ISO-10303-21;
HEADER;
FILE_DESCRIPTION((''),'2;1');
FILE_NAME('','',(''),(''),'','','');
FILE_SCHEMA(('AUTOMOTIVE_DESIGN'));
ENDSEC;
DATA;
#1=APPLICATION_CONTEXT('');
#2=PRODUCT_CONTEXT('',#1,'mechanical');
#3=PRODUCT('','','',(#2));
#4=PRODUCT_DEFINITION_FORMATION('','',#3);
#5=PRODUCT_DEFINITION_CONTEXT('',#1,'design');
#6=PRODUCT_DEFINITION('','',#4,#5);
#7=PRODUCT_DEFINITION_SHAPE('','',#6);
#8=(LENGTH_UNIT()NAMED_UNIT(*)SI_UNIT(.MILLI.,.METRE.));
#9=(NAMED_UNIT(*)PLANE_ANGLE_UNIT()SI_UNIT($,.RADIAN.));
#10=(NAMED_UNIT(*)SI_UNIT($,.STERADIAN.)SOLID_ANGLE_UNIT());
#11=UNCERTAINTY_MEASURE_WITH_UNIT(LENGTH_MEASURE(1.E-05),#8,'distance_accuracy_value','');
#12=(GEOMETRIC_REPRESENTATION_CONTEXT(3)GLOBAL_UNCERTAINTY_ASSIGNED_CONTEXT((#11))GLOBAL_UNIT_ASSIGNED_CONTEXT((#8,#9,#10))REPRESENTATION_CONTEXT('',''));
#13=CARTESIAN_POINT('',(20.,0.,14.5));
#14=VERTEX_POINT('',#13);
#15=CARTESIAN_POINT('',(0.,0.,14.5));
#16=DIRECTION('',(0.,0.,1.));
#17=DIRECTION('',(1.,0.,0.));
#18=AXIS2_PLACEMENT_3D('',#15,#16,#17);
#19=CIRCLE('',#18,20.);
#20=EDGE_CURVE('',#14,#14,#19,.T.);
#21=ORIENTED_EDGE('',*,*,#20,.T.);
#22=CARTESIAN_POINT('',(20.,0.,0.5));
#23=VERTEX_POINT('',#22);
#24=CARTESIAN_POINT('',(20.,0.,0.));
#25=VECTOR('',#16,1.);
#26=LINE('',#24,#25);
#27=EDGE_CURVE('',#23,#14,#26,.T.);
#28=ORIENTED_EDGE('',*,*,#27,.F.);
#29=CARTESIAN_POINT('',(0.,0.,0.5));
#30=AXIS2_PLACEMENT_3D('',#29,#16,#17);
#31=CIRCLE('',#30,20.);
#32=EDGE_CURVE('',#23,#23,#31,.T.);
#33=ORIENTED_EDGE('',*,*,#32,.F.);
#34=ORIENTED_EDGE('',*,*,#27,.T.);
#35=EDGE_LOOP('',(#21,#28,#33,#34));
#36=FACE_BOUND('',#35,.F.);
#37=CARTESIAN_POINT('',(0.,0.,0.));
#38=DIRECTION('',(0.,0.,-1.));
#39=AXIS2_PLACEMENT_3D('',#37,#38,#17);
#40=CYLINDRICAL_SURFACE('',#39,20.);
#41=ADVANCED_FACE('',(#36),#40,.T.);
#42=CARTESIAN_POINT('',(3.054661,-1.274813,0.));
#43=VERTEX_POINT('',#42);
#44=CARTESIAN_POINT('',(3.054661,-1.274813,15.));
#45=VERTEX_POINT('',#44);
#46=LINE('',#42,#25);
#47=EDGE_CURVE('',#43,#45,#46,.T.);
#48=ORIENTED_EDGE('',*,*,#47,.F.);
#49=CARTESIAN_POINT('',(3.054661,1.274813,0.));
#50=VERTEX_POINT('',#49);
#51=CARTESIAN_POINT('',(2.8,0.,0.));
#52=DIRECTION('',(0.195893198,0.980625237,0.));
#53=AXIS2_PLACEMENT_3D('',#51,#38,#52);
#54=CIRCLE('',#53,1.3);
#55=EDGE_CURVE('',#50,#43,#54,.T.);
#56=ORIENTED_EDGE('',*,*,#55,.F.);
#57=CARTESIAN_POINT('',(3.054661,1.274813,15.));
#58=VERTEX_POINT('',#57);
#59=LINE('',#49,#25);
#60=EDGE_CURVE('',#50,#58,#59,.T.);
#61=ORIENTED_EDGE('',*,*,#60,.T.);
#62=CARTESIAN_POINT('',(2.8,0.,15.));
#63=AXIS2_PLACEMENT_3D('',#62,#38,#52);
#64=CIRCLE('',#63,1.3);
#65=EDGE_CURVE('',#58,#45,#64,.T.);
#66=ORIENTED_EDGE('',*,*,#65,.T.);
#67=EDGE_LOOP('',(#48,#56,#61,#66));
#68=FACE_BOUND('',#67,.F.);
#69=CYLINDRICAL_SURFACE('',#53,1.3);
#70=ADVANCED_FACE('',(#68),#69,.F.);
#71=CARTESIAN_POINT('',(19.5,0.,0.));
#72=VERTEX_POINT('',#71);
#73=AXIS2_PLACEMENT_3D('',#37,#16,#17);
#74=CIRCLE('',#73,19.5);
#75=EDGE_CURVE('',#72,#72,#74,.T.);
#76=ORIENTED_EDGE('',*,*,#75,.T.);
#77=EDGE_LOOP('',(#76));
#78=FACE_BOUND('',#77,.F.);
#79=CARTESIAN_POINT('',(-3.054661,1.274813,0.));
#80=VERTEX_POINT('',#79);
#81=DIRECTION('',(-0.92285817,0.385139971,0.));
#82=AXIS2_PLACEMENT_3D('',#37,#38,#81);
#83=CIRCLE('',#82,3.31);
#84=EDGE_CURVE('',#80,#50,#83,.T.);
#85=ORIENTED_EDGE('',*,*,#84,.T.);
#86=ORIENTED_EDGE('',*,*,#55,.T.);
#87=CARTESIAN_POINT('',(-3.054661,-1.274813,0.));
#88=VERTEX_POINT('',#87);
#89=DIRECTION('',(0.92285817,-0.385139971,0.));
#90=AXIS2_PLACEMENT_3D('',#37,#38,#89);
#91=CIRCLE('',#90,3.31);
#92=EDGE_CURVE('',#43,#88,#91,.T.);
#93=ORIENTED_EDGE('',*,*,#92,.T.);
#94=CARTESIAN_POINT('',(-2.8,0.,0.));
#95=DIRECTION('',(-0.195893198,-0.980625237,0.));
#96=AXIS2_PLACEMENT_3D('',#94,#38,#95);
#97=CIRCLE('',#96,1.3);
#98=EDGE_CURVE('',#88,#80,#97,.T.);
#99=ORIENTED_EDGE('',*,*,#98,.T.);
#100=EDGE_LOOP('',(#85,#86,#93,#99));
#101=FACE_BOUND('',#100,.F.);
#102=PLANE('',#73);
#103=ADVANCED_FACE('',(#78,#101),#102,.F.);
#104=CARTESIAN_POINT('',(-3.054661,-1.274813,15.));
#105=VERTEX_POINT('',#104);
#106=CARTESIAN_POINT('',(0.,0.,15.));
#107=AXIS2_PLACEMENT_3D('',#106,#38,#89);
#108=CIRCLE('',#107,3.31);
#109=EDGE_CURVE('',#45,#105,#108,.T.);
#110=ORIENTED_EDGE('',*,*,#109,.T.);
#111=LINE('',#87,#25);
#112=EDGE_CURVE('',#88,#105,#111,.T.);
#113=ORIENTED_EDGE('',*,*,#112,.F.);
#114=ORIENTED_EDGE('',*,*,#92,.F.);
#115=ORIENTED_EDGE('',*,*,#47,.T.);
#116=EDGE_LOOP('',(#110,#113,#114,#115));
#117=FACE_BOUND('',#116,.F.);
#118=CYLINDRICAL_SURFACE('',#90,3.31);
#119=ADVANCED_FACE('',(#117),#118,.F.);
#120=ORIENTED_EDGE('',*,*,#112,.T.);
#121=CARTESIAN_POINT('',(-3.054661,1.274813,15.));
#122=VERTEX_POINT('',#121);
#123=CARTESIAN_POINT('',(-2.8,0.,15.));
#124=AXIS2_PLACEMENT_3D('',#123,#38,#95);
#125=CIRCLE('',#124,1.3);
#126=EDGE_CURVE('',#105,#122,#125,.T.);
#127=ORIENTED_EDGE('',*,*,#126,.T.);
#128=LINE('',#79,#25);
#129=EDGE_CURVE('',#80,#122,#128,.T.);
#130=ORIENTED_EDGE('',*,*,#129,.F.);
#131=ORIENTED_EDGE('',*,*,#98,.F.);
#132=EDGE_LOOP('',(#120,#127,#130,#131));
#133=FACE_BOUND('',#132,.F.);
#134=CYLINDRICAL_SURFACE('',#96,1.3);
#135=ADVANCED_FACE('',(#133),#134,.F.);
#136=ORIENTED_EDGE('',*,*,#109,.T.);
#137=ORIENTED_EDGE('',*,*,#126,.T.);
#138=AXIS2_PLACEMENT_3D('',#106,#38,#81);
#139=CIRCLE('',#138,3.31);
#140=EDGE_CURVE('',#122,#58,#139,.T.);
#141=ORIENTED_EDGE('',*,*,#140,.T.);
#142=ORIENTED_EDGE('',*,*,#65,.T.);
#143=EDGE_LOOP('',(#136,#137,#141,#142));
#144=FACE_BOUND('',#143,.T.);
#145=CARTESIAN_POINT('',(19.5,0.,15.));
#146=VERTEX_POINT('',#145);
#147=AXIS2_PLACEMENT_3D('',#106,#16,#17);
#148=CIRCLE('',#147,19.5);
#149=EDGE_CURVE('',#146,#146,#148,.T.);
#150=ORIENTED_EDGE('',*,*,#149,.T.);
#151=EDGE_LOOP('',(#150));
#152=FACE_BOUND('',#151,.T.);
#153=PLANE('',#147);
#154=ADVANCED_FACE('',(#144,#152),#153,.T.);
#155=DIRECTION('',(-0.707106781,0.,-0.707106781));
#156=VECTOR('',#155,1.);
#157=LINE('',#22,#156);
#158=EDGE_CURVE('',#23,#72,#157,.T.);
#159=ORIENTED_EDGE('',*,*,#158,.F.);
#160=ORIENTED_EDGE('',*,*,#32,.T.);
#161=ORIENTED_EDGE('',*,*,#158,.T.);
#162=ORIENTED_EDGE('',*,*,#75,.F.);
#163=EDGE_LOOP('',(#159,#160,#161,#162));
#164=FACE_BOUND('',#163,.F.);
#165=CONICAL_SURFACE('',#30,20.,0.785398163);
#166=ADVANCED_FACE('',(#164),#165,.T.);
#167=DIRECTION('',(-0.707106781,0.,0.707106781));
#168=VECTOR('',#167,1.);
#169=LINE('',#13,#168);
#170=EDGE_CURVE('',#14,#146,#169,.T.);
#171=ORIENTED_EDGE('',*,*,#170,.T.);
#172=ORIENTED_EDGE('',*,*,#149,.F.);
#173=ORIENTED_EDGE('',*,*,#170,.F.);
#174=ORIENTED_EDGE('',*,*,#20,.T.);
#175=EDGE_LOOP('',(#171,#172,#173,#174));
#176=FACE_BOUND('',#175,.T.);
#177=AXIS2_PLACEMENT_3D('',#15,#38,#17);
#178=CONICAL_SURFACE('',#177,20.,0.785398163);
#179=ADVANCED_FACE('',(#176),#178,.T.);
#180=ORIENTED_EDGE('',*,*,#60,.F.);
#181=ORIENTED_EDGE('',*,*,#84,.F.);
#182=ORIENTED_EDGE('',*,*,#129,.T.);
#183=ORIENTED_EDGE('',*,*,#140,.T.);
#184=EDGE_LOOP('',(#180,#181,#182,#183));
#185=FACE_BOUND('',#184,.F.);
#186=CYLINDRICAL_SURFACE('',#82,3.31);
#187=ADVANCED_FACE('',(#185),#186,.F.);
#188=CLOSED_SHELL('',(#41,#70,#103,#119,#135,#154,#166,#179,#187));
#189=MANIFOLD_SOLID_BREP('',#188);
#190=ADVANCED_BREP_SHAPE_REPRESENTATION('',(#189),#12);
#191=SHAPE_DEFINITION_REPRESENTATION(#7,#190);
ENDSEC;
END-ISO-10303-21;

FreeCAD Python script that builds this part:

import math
import FreeCAD as App
import Part
import Sketcher
from FreeCAD import Vector


def edges_at(feature, points):
    """Names of the edges that pass closest to the given points."""
    edges = feature.Shape.Edges
    near = lambda p: min(range(len(edges)), key=lambda i: edges[i].distToShape(Part.Vertex(*p))[0])
    return sorted({f"Edge{near(p) + 1}" for p in points})

doc = App.newDocument("Part")
body = doc.addObject("PartDesign::Body", "Body")

# Sketch on XY plane
sketch1 = body.newObject("Sketcher::SketchObject", "Sketch")
sketch1.AttachmentSupport = (doc.getObject("XY_Plane"), [""])
sketch1.MapMode = "FlatFace"
sketch1.addGeometry(Part.Circle(Vector(0, 0, 0), Vector(0, 0, 1), 20), False)
sketch1.addGeometry(Part.ArcOfCircle(Part.Circle(Vector(2.8, 0, 0), Vector(0, 0, 1), 1.3), math.radians(-79), math.radians(79)), False)
sketch1.addGeometry(Part.ArcOfCircle(Part.Circle(Vector(0, 0, 0), Vector(0, 0, 1), 3.3), math.radians(-157), math.radians(-23)), False)
sketch1.addGeometry(Part.ArcOfCircle(Part.Circle(Vector(-2.8, 0, 0), Vector(0, 0, 1), 1.3), math.radians(101), math.radians(259)), False)
sketch1.addGeometry(Part.ArcOfCircle(Part.Circle(Vector(0, 0, 0), Vector(0, 0, 1), 3.3), math.radians(23), math.radians(157)), False)
sketch1.addConstraint(Sketcher.Constraint("Coincident", 1, 1, 2, 2))
sketch1.addConstraint(Sketcher.Constraint("Coincident", 2, 1, 3, 2))
sketch1.addConstraint(Sketcher.Constraint("Coincident", 3, 1, 4, 2))
sketch1.addConstraint(Sketcher.Constraint("Coincident", 4, 1, 1, 2))
sketch1.addConstraint(Sketcher.Constraint("Coincident", 0, 3, -1, 1))
sketch1.addConstraint(Sketcher.Constraint("Coincident", 2, 3, -1, 1))
sketch1.addConstraint(Sketcher.Constraint("Coincident", 4, 3, -1, 1))
sketch1.addConstraint(Sketcher.Constraint("Equal", 1, 3))
sketch1.addConstraint(Sketcher.Constraint("Equal", 2, 4))
sketch1.addConstraint(Sketcher.Constraint("Symmetric", 1, 3, 3, 3, -1, 1))
sketch1.addConstraint(Sketcher.Constraint("PointOnObject", 1, 3, -1))
sketch1.addConstraint(Sketcher.Constraint("Diameter", 0, 40.0))
sketch1.addConstraint(Sketcher.Constraint("Radius", 1, 1.3))
sketch1.addConstraint(Sketcher.Constraint("Radius", 2, 3.31))
sketch1.addConstraint(Sketcher.Constraint("DistanceX", -1, 1, 1, 3, 2.8))
pad1 = body.newObject("PartDesign::Pad", "Pad")
pad1.Profile = sketch1
pad1.Length = 15
doc.recompute()

chamfer = body.newObject("PartDesign::Chamfer", "Chamfer")
chamfer.Base = (pad1, edges_at(pad1, [(-20, 0, 15), (-20, 0, 0)]))
chamfer.Size = 0.5

doc.recompute()
